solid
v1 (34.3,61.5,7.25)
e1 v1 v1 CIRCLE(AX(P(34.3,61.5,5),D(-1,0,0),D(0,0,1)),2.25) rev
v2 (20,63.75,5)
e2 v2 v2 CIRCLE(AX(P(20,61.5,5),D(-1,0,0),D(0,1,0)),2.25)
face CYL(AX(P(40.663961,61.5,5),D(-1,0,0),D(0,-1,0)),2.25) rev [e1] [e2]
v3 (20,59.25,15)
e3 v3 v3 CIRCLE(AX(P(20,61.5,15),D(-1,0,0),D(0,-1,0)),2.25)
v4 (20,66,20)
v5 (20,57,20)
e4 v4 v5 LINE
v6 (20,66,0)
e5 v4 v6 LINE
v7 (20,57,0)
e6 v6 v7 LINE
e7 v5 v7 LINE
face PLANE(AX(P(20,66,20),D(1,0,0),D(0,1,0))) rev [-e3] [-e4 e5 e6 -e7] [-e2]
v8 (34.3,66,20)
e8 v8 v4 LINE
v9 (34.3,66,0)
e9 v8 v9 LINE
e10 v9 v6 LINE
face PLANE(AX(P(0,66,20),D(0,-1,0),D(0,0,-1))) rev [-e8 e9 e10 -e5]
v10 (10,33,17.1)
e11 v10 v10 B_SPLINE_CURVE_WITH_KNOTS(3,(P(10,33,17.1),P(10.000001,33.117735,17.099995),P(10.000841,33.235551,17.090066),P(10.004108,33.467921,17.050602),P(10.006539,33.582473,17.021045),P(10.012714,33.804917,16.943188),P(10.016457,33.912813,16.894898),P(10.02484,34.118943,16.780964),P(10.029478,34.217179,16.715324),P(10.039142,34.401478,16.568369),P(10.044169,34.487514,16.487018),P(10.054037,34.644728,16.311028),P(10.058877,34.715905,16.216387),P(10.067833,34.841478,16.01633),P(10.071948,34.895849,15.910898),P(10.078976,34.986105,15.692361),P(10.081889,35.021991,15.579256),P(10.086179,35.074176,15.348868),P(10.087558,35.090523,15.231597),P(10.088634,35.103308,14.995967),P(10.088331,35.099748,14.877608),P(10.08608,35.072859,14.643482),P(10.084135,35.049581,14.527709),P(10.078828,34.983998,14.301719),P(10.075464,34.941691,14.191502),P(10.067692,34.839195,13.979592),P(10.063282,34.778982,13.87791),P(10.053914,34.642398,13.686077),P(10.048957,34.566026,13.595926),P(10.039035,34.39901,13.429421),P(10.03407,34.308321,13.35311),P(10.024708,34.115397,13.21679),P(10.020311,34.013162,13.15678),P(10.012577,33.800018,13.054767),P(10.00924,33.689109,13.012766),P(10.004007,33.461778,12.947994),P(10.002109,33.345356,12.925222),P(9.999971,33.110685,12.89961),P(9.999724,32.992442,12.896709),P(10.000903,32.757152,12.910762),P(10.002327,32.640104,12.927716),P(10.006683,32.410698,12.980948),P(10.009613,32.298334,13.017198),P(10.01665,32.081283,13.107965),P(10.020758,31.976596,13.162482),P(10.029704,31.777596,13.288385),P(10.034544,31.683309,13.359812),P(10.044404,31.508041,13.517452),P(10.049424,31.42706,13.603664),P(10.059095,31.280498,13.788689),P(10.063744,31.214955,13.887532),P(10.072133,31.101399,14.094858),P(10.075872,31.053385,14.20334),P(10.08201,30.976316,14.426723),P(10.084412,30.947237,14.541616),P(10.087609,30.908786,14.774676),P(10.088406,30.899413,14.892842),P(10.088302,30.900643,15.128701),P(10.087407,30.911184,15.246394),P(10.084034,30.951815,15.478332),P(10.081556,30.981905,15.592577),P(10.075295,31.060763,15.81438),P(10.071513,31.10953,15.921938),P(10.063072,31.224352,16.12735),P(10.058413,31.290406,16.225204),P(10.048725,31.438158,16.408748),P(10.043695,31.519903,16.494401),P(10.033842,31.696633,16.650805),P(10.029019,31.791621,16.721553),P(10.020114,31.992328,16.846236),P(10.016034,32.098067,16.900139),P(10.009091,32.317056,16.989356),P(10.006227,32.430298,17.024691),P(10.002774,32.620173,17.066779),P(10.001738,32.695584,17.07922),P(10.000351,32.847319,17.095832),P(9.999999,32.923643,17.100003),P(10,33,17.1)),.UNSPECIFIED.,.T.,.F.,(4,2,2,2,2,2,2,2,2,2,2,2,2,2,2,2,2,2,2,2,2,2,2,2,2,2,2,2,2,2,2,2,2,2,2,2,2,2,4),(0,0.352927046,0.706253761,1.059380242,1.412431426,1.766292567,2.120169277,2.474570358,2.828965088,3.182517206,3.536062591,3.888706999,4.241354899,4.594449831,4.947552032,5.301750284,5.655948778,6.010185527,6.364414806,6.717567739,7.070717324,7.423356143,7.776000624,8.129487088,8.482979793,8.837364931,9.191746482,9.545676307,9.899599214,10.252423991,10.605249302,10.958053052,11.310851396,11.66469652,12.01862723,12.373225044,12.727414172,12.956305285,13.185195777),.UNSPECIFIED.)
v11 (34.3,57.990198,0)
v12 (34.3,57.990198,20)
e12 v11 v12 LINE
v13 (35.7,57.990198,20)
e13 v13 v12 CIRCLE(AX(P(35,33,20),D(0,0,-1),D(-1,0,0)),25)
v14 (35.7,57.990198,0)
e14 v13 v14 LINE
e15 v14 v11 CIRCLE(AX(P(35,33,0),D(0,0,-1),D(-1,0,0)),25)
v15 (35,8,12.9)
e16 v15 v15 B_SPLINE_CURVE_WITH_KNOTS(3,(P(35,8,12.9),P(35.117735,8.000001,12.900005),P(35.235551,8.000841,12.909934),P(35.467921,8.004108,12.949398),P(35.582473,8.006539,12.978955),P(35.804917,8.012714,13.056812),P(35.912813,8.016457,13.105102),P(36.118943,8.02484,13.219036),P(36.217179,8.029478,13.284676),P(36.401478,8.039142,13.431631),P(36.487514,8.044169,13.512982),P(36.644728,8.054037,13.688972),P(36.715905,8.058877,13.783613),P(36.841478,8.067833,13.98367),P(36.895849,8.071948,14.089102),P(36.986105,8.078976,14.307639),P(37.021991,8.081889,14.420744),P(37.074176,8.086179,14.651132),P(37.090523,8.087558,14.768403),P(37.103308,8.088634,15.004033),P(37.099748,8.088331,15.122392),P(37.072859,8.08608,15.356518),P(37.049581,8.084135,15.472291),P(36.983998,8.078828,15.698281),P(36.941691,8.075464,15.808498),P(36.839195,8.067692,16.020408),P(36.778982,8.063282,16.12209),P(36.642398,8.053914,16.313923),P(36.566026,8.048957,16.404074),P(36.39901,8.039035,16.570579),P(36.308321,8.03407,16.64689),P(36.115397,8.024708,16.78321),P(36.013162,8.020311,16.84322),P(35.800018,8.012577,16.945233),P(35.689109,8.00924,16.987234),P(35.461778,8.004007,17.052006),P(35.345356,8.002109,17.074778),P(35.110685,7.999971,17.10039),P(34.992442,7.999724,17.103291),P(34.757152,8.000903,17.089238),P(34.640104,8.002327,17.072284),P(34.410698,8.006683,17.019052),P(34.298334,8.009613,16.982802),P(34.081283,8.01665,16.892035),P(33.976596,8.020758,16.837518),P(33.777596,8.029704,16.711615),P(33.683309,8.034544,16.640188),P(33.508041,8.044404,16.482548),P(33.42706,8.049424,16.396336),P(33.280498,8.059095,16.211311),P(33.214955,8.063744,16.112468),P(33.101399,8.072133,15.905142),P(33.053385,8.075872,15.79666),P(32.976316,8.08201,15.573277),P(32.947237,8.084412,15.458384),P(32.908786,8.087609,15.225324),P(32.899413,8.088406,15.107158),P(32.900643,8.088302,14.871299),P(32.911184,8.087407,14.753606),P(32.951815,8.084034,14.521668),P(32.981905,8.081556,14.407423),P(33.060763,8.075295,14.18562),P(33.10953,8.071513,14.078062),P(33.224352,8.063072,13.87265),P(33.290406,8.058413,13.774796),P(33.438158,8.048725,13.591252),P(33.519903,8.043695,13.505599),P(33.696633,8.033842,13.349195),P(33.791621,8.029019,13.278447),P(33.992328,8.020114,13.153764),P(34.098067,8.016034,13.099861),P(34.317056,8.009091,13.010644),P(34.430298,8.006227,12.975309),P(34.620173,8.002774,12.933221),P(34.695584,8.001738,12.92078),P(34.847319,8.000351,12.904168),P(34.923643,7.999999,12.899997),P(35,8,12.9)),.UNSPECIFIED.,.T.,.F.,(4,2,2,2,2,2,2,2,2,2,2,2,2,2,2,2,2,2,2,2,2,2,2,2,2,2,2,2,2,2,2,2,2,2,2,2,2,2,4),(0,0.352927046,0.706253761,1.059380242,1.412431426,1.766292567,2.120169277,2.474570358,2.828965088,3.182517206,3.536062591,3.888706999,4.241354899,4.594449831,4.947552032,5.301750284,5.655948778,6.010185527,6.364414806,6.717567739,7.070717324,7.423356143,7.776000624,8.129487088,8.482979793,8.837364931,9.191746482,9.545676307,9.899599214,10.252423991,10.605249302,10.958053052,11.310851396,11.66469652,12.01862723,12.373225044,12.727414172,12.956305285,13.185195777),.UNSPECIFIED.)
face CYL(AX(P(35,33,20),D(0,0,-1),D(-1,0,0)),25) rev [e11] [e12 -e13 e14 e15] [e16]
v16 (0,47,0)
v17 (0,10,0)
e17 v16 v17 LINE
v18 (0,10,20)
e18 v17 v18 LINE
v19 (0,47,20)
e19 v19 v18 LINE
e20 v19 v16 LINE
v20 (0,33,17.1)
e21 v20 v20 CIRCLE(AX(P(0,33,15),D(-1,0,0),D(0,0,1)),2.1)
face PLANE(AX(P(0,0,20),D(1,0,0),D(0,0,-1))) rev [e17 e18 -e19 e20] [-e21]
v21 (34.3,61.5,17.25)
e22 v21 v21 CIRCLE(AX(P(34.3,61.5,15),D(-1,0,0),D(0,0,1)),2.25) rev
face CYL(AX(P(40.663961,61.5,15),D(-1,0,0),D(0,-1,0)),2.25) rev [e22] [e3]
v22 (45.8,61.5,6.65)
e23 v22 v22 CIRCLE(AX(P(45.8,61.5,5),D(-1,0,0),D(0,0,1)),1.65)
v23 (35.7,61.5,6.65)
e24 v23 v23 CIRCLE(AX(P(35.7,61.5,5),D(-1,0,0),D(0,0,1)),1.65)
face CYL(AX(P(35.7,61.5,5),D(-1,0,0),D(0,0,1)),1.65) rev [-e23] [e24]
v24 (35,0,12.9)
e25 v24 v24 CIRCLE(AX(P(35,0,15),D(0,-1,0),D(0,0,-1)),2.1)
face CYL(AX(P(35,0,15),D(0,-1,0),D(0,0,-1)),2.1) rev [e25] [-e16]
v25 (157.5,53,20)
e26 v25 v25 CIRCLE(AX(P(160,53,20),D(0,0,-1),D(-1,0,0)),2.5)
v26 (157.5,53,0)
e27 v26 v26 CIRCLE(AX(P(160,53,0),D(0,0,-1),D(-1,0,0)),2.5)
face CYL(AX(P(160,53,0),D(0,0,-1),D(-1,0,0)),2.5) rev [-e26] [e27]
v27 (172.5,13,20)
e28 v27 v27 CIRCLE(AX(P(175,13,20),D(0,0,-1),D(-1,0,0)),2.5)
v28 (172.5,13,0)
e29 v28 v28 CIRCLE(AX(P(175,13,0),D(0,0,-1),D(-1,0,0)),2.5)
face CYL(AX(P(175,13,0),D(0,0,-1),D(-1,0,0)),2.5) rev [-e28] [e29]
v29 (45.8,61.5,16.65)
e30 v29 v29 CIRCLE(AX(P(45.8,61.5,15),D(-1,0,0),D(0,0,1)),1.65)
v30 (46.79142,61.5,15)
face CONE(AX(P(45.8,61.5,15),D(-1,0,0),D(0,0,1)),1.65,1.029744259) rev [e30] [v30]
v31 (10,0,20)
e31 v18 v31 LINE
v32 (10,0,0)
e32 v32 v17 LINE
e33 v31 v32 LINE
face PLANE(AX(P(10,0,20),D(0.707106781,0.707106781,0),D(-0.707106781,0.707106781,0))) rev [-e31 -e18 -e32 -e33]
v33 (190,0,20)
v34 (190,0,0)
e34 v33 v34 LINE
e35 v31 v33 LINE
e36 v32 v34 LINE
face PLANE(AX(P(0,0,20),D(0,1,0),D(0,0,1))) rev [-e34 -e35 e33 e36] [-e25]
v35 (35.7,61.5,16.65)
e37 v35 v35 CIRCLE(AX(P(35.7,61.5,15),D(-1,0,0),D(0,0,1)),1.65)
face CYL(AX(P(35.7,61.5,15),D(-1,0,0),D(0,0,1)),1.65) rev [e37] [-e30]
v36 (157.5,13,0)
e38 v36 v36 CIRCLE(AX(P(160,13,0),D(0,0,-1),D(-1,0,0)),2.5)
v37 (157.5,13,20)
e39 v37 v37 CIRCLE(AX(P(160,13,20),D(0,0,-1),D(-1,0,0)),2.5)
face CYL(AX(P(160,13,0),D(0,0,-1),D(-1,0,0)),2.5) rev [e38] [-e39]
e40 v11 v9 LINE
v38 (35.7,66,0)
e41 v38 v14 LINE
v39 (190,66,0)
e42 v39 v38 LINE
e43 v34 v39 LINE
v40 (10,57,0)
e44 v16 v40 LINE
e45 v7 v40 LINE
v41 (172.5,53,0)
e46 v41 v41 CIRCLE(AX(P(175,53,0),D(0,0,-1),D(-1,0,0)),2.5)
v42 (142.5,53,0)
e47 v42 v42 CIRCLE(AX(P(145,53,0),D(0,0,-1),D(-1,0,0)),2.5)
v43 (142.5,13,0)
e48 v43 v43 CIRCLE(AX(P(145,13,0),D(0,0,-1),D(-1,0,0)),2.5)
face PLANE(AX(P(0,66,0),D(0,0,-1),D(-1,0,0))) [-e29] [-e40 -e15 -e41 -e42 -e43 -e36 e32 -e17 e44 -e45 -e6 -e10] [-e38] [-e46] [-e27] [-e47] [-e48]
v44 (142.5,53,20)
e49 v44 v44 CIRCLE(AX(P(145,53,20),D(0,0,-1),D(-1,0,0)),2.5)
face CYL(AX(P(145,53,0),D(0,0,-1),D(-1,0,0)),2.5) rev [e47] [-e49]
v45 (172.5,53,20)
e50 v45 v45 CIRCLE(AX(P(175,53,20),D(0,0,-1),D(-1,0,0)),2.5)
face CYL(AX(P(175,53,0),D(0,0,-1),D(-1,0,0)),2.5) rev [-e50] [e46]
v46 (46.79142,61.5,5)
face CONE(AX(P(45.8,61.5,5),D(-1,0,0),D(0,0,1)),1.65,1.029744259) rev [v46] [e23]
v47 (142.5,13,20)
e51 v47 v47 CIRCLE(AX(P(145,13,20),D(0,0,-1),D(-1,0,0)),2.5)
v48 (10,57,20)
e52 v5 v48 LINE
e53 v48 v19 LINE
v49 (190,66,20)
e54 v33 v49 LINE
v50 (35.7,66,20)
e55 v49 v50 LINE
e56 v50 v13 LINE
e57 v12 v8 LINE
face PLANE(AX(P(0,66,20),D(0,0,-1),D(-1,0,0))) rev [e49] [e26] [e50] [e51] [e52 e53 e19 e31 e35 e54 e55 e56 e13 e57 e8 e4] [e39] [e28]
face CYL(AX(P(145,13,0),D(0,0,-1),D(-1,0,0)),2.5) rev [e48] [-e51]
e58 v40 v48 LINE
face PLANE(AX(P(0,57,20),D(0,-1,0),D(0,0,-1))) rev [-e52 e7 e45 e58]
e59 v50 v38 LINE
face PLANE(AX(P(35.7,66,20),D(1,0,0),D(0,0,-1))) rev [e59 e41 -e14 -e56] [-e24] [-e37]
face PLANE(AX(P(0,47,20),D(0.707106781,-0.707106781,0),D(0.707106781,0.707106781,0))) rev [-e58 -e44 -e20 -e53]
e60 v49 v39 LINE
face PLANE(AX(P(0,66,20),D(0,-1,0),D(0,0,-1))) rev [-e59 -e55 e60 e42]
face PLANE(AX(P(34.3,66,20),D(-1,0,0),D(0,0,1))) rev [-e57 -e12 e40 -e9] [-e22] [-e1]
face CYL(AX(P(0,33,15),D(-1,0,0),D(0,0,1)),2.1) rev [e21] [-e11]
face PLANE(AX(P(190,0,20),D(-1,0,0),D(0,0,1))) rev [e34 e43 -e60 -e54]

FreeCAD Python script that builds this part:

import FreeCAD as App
import Part
import Sketcher
Q = App.Units.Quantity


def edges_at(feature, points):
    """Names of the edges that pass closest to the given points."""
    edges = feature.Shape.Edges
    near = lambda p: min(range(len(edges)), key=lambda i: edges[i].distToShape(Part.Vertex(*p))[0])
    return sorted({f"Edge{near(p) + 1}" for p in points})


def add_polygon(sketch, points):
    """Adds a closed chain of lines whose ends are joined by coincident constraints."""
    first, n = sketch.GeometryCount, len(points)
    for a, b in zip(points, points[1:] + points[:1]):
        sketch.addGeometry(Part.LineSegment(App.Vector(*a, 0), App.Vector(*b, 0)), False)
    for i in range(n):
        sketch.addConstraint(Sketcher.Constraint("Coincident", first + i, 2, first + (i + 1) % n, 1))

doc = App.newDocument("Part")
body = doc.addObject("PartDesign::Body", "Body")

# Sketch on XY plane
sketch1 = doc.addObject("Sketcher::SketchObject", "Sketch")
body.addObject(sketch1)
sketch1.AttachmentSupport = (doc.XY_Plane, [""])
sketch1.MapMode = "FlatFace"
add_polygon(sketch1, [(0, 66), (0, 0), (190, 0), (190, 66)])  # lines 0-3
sketch1.addConstraint(Sketcher.Constraint("Vertical", 0))
sketch1.addConstraint(Sketcher.Constraint("Horizontal", 1))
sketch1.addConstraint(Sketcher.Constraint("Vertical", 2))
sketch1.addConstraint(Sketcher.Constraint("Horizontal", 3))
sketch1.addConstraint(Sketcher.Constraint("Coincident", 0, 2, -1, 1))
sketch1.addConstraint(Sketcher.Constraint("DistanceX", 1, 1, 1, 2, Q("190 mm")))
sketch1.addConstraint(Sketcher.Constraint("DistanceY", 0, 2, 0, 1, Q("66 mm")))
pad1 = doc.addObject("PartDesign::Pad", "Pad")
body.addObject(pad1)
pad1.Profile = sketch1
pad1.Length = 20

# Sketch on XY plane
sketch2 = doc.addObject("Sketcher::SketchObject", "Sketch001")
body.addObject(sketch2)
sketch2.AttachmentSupport = (doc.XY_Plane, [""])
sketch2.MapMode = "FlatFace"
sketch2.addGeometry(Part.Circle(App.Vector(35, 33, 0), App.Vector(0, 0, 1), 25), False)
sketch2.addConstraint(Sketcher.Constraint("Diameter", 0, Q("50 mm")))
sketch2.addConstraint(Sketcher.Constraint("DistanceX", -1, 1, 0, 3, Q("35 mm")))
sketch2.addConstraint(Sketcher.Constraint("DistanceY", -1, 1, 0, 3, Q("33 mm")))
pocket1 = doc.addObject("PartDesign::Pocket", "Pocket")
body.addObject(pocket1)
pocket1.Profile = sketch2
pocket1.Type = "ThroughAll"
pocket1.Reversed = True

# Sketch on XY plane
sketch3 = doc.addObject("Sketcher::SketchObject", "Sketch002")
body.addObject(sketch3)
sketch3.AttachmentSupport = (doc.XY_Plane, [""])
sketch3.MapMode = "FlatFace"
add_polygon(sketch3, [(20, 66), (20, 57), (0, 57), (0, 66)])  # lines 0-3
sketch3.addConstraint(Sketcher.Constraint("Vertical", 0))
sketch3.addConstraint(Sketcher.Constraint("Horizontal", 1))
sketch3.addConstraint(Sketcher.Constraint("Vertical", 2))
sketch3.addConstraint(Sketcher.Constraint("Horizontal", 3))
sketch3.addConstraint(Sketcher.Constraint("PointOnObject", 1, 2, -2))
sketch3.addConstraint(Sketcher.Constraint("DistanceX", 1, 2, 1, 1, Q("20 mm")))
sketch3.addConstraint(Sketcher.Constraint("DistanceY", 0, 2, 0, 1, Q("9 mm")))
sketch3.addConstraint(Sketcher.Constraint("DistanceY", -1, 1, 0, 2, Q("57 mm")))
pocket2 = doc.addObject("PartDesign::Pocket", "Pocket001")
body.addObject(pocket2)
pocket2.Profile = sketch3
pocket2.Type = "ThroughAll"
pocket2.Reversed = True

# Sketch on XY plane
sketch4 = doc.addObject("Sketcher::SketchObject", "Sketch003")
body.addObject(sketch4)
sketch4.AttachmentSupport = (doc.XY_Plane, [""])
sketch4.MapMode = "FlatFace"
add_polygon(sketch4, [(35.7, 66), (35.7, 49.1), (34.3, 49.1), (34.3, 66)])  # lines 0-3
sketch4.addConstraint(Sketcher.Constraint("Vertical", 0))
sketch4.addConstraint(Sketcher.Constraint("Horizontal", 1))
sketch4.addConstraint(Sketcher.Constraint("Vertical", 2))
sketch4.addConstraint(Sketcher.Constraint("Horizontal", 3))
sketch4.addConstraint(Sketcher.Constraint("DistanceX", 1, 2, 1, 1, Q("1.4 mm")))
sketch4.addConstraint(Sketcher.Constraint("DistanceY", -1, 1, 2, 2, Q("66 mm")))
sketch4.addConstraint(Sketcher.Constraint("DistanceX", -1, 1, 0, 2, Q("35.7 mm")))
sketch4.addConstraint(Sketcher.Constraint("DistanceY", 0, 2, 0, 1, Q("16.934134 mm")))
pocket3 = doc.addObject("PartDesign::Pocket", "Pocket002")
body.addObject(pocket3)
pocket3.Profile = sketch4
pocket3.Type = "ThroughAll"
pocket3.Reversed = True
doc.recompute()

chamfer = doc.addObject("PartDesign::Chamfer", "Chamfer")
body.addObject(chamfer)
chamfer.Base = (pocket3, edges_at(pocket3, [(0, 57, 10)]))
chamfer.Size = 10

# Sketch on YZ plane
sketch5 = doc.addObject("Sketcher::SketchObject", "Sketch004")
body.addObject(sketch5)
sketch5.AttachmentSupport = (doc.YZ_Plane, [""])
sketch5.MapMode = "FlatFace"
sketch5.AttachmentOffset = App.Placement(App.Vector(0, 0, 20), App.Rotation())
sketch5.addGeometry(Part.Circle(App.Vector(61.5, 15, 0), App.Vector(0, 0, 1), 2.2), False)
sketch5.addGeometry(Part.Circle(App.Vector(61.5, 5, 0), App.Vector(0, 0, 1), 2.2), False)
sketch5.addConstraint(Sketcher.Constraint("Equal", 0, 1))
sketch5.addConstraint(Sketcher.Constraint("Vertical", 0, 3, 1, 3))
sketch5.addConstraint(Sketcher.Constraint("Diameter", 0, Q("4.5 mm")))
sketch5.addConstraint(Sketcher.Constraint("DistanceY", -1, 1, 0, 3, Q("15 mm")))
sketch5.addConstraint(Sketcher.Constraint("DistanceY", -1, 1, 1, 3, Q("5 mm")))
sketch5.addConstraint(Sketcher.Constraint("DistanceX", -1, 1, 0, 3, Q("61.5 mm")))
pocket4 = doc.addObject("PartDesign::Pocket", "Pocket003")
body.addObject(pocket4)
pocket4.Profile = sketch5
pocket4.Length = 14.3
pocket4.Reversed = True

# Sketch on YZ plane
sketch6 = doc.addObject("Sketcher::SketchObject", "Sketch005")
body.addObject(sketch6)
sketch6.AttachmentSupport = (doc.YZ_Plane, [""])
sketch6.MapMode = "FlatFace"
sketch6.AttachmentOffset = App.Placement(App.Vector(0, 0, 35.7), App.Rotation())
sketch6.addGeometry(Part.Circle(App.Vector(61.5, 15, 0), App.Vector(0, 0, 1), 1.6), False)
sketch6.addGeometry(Part.Circle(App.Vector(61.5, 5, 0), App.Vector(0, 0, 1), 1.6), False)
sketch6.addConstraint(Sketcher.Constraint("Equal", 0, 1))
sketch6.addConstraint(Sketcher.Constraint("Vertical", 0, 3, 1, 3))
sketch6.addConstraint(Sketcher.Constraint("Diameter", 0, Q("3.3 mm")))
sketch6.addConstraint(Sketcher.Constraint("DistanceY", -1, 1, 0, 3, Q("15 mm")))
sketch6.addConstraint(Sketcher.Constraint("DistanceY", -1, 1, 1, 3, Q("5 mm")))
sketch6.addConstraint(Sketcher.Constraint("DistanceX", -1, 1, 0, 3, Q("61.5 mm")))
doc.recompute()
hole = doc.addObject("PartDesign::Hole", "Hole")
body.addObject(hole)
hole.Profile = sketch6
hole.ThreadType = "None"
hole.Diameter = 3.3
hole.DepthType = "Dimension"
hole.Depth = 10.1
hole.DrillPoint = "Angled"
hole.DrillPointAngle = 118
hole.Reversed = True

# Sketch on YZ plane
sketch7 = doc.addObject("Sketcher::SketchObject", "Sketch006")
body.addObject(sketch7)
sketch7.AttachmentSupport = (doc.YZ_Plane, [""])
sketch7.MapMode = "FlatFace"
sketch7.addGeometry(Part.Circle(App.Vector(33, 15, 0), App.Vector(0, 0, 1), 2.1), False)
sketch7.addConstraint(Sketcher.Constraint("Diameter", 0, Q("4.2 mm")))
sketch7.addConstraint(Sketcher.Constraint("DistanceX", -1, 1, 0, 3, Q("33 mm")))
sketch7.addConstraint(Sketcher.Constraint("DistanceY", -1, 1, 0, 3, Q("15 mm")))
pocket5 = doc.addObject("PartDesign::Pocket", "Pocket004")
body.addObject(pocket5)
pocket5.Profile = sketch7
pocket5.Type = "UpToFirst"
pocket5.Reversed = True

# Sketch on XZ plane
sketch8 = doc.addObject("Sketcher::SketchObject", "Sketch007")
body.addObject(sketch8)
sketch8.AttachmentSupport = (doc.XZ_Plane, [""])
sketch8.MapMode = "FlatFace"
sketch8.addGeometry(Part.Circle(App.Vector(35, 15, 0), App.Vector(0, 0, 1), 2.1), False)
sketch8.addConstraint(Sketcher.Constraint("Diameter", 0, Q("4.2 mm")))
sketch8.addConstraint(Sketcher.Constraint("DistanceX", -1, 1, 0, 3, Q("35 mm")))
sketch8.addConstraint(Sketcher.Constraint("DistanceY", -1, 1, 0, 3, Q("15 mm")))
doc.recompute()
hole2 = doc.addObject("PartDesign::Hole", "Hole001")
body.addObject(hole2)
hole2.Profile = sketch8
hole2.ThreadType = "None"
hole2.Diameter = 4.2
hole2.DepthType = "Dimension"
hole2.Depth = 12.4
hole2.DrillPoint = "Angled"
hole2.DrillPointAngle = 118
doc.recompute()

chamfer2 = doc.addObject("PartDesign::Chamfer", "Chamfer001")
body.addObject(chamfer2)
chamfer2.Base = (hole2, edges_at(hole2, [(0, 0, 10)]))
chamfer2.Size = 10

# Sketch on XY plane
sketch9 = doc.addObject("Sketcher::SketchObject", "Sketch008")
body.addObject(sketch9)
sketch9.AttachmentSupport = (doc.XY_Plane, [""])
sketch9.MapMode = "FlatFace"
sketch9.addGeometry(Part.Circle(App.Vector(175, 53, 0), App.Vector(0, 0, 1), 2.5), False)
sketch9.addGeometry(Part.Circle(App.Vector(175, 13, 0), App.Vector(0, 0, 1), 2.5), False)
sketch9.addConstraint(Sketcher.Constraint("Equal", 0, 1))
sketch9.addConstraint(Sketcher.Constraint("Vertical", 0, 3, 1, 3))
sketch9.addConstraint(Sketcher.Constraint("Diameter", 0, Q("5 mm")))
sketch9.addConstraint(Sketcher.Constraint("DistanceX", -1, 1, 0, 3, Q("175 mm")))
sketch9.addConstraint(Sketcher.Constraint("DistanceY", -1, 1, 0, 3, Q("53 mm")))
sketch9.addConstraint(Sketcher.Constraint("DistanceY", -1, 1, 1, 3, Q("13 mm")))
doc.recompute()
hole3 = doc.addObject("PartDesign::Hole", "Hole002")
body.addObject(hole3)
hole3.Profile = sketch9
hole3.ThreadType = "None"
hole3.Diameter = 5
hole3.DepthType = "ThroughAll"
hole3.Reversed = True
doc.recompute()

linearpattern = doc.addObject("PartDesign::LinearPattern", "LinearPattern")
body.addObject(linearpattern)
linearpattern.Originals = [hole3]
linearpattern.Direction = (doc.X_Axis, [""])
linearpattern.Mode = "offset"
linearpattern.Offset = 15
linearpattern.Occurrences = 3
linearpattern.Reversed = True
body.Tip = linearpattern

doc.recompute()
